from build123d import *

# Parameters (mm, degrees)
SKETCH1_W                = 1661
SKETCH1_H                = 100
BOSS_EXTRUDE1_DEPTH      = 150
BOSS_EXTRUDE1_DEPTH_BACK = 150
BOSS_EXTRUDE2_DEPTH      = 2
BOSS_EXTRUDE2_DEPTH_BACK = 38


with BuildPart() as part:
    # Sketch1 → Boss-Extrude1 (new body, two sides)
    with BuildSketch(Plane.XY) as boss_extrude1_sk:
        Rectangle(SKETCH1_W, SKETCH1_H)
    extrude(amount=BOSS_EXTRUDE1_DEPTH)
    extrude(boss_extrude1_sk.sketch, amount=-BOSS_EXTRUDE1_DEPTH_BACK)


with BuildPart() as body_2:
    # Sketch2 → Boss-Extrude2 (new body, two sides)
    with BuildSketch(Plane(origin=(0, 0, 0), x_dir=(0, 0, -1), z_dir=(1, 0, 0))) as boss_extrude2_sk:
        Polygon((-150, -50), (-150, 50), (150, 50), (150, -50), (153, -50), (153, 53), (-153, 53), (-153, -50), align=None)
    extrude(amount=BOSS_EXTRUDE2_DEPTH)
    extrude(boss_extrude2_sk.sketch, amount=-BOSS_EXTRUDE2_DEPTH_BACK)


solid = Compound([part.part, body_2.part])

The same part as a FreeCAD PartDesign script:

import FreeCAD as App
import Part
import Sketcher

doc = App.newDocument("Part")
body = doc.addObject("PartDesign::Body", "Body")

# Sketch on XY plane
sketch1 = body.newObject("Sketcher::SketchObject", "Sketch")
sketch1.AttachmentSupport = (doc.getObject("XY_Plane"), [""])
sketch1.MapMode = "FlatFace"
sketch1.addGeometry([
    Part.LineSegment(App.Vector(-830, 50, 0), App.Vector(-830, -50, 0)),
    Part.LineSegment(App.Vector(-830, -50, 0), App.Vector(830, -50, 0)),
    Part.LineSegment(App.Vector(830, -50, 0), App.Vector(830, 50, 0)),
    Part.LineSegment(App.Vector(830, 50, 0), App.Vector(-830, 50, 0)),
], False)
sketch1.addConstraint([
    Sketcher.Constraint("Coincident", 0, 2, 1, 1),
    Sketcher.Constraint("Coincident", 1, 2, 2, 1),
    Sketcher.Constraint("Coincident", 2, 2, 3, 1),
    Sketcher.Constraint("Coincident", 3, 2, 0, 1),
    Sketcher.Constraint("Vertical", 0),
    Sketcher.Constraint("Horizontal", 1),
    Sketcher.Constraint("Vertical", 2),
    Sketcher.Constraint("Horizontal", 3),
    Sketcher.Constraint("Symmetric", 0, 2, 2, 2, -1, 1),
    Sketcher.Constraint("DistanceX", 1, 1, 1, 2, 1661.0),
    Sketcher.Constraint("DistanceY", 0, 2, 0, 1, 100.0),
])
pad1 = body.newObject("PartDesign::Pad", "Pad")
pad1.Profile = sketch1
pad1.Type = "TwoLengths"
pad1.Length = 150
pad1.Length2 = 150
body2 = doc.addObject("PartDesign::Body", "Body001")

# Sketch on YZ plane
sketch2 = body2.newObject("Sketcher::SketchObject", "Sketch001")
sketch2.AttachmentSupport = (doc.getObject("YZ_Plane001"), [""])
sketch2.MapMode = "FlatFace"
sketch2.addGeometry([
    Part.LineSegment(App.Vector(-50, 150, 0), App.Vector(50, 150, 0)),  # 0
    Part.LineSegment(App.Vector(50, 150, 0), App.Vector(50, -150, 0)),  # 1
    Part.LineSegment(App.Vector(50, -150, 0), App.Vector(-50, -150, 0)),  # 2
    Part.LineSegment(App.Vector(-50, -150, 0), App.Vector(-50, -153, 0)),  # 3
    Part.LineSegment(App.Vector(-50, -153, 0), App.Vector(53, -153, 0)),  # 4
    Part.LineSegment(App.Vector(53, -153, 0), App.Vector(53, 153, 0)),  # 5
    Part.LineSegment(App.Vector(53, 153, 0), App.Vector(-50, 153, 0)),  # 6
    Part.LineSegment(App.Vector(-50, 153, 0), App.Vector(-50, 150, 0)),  # 7
], False)
sketch2.addConstraint([
    Sketcher.Constraint("Coincident", 0, 2, 1, 1),
    Sketcher.Constraint("Coincident", 1, 2, 2, 1),
    Sketcher.Constraint("Coincident", 2, 2, 3, 1),
    Sketcher.Constraint("Coincident", 3, 2, 4, 1),
    Sketcher.Constraint("Coincident", 4, 2, 5, 1),
    Sketcher.Constraint("Coincident", 5, 2, 6, 1),
    Sketcher.Constraint("Coincident", 6, 2, 7, 1),
    Sketcher.Constraint("Coincident", 7, 2, 0, 1),
    Sketcher.Constraint("Horizontal", 0),
    Sketcher.Constraint("Vertical", 1),
    Sketcher.Constraint("Horizontal", 2),
    Sketcher.Constraint("Vertical", 3),
    Sketcher.Constraint("Horizontal", 4),
    Sketcher.Constraint("Vertical", 5),
    Sketcher.Constraint("Horizontal", 6),
    Sketcher.Constraint("Vertical", 7),
    Sketcher.Constraint("Symmetric", 0, 2, 2, 2, -1, 1),
    Sketcher.Constraint("Symmetric", 3, 2, 6, 2, -1),
    Sketcher.Constraint("DistanceX", 0, 1, 0, 2, 100.0),
    Sketcher.Constraint("DistanceX", 4, 1, 4, 2, 103.0),
    Sketcher.Constraint("DistanceY", 1, 2, 1, 1, 300.0),
    Sketcher.Constraint("DistanceY", 3, 2, 3, 1, 3.0),
])
pad2 = body2.newObject("PartDesign::Pad", "Pad001")
pad2.Profile = sketch2
pad2.Type = "TwoLengths"
pad2.Length = 2
pad2.Length2 = 38

doc.recompute()
